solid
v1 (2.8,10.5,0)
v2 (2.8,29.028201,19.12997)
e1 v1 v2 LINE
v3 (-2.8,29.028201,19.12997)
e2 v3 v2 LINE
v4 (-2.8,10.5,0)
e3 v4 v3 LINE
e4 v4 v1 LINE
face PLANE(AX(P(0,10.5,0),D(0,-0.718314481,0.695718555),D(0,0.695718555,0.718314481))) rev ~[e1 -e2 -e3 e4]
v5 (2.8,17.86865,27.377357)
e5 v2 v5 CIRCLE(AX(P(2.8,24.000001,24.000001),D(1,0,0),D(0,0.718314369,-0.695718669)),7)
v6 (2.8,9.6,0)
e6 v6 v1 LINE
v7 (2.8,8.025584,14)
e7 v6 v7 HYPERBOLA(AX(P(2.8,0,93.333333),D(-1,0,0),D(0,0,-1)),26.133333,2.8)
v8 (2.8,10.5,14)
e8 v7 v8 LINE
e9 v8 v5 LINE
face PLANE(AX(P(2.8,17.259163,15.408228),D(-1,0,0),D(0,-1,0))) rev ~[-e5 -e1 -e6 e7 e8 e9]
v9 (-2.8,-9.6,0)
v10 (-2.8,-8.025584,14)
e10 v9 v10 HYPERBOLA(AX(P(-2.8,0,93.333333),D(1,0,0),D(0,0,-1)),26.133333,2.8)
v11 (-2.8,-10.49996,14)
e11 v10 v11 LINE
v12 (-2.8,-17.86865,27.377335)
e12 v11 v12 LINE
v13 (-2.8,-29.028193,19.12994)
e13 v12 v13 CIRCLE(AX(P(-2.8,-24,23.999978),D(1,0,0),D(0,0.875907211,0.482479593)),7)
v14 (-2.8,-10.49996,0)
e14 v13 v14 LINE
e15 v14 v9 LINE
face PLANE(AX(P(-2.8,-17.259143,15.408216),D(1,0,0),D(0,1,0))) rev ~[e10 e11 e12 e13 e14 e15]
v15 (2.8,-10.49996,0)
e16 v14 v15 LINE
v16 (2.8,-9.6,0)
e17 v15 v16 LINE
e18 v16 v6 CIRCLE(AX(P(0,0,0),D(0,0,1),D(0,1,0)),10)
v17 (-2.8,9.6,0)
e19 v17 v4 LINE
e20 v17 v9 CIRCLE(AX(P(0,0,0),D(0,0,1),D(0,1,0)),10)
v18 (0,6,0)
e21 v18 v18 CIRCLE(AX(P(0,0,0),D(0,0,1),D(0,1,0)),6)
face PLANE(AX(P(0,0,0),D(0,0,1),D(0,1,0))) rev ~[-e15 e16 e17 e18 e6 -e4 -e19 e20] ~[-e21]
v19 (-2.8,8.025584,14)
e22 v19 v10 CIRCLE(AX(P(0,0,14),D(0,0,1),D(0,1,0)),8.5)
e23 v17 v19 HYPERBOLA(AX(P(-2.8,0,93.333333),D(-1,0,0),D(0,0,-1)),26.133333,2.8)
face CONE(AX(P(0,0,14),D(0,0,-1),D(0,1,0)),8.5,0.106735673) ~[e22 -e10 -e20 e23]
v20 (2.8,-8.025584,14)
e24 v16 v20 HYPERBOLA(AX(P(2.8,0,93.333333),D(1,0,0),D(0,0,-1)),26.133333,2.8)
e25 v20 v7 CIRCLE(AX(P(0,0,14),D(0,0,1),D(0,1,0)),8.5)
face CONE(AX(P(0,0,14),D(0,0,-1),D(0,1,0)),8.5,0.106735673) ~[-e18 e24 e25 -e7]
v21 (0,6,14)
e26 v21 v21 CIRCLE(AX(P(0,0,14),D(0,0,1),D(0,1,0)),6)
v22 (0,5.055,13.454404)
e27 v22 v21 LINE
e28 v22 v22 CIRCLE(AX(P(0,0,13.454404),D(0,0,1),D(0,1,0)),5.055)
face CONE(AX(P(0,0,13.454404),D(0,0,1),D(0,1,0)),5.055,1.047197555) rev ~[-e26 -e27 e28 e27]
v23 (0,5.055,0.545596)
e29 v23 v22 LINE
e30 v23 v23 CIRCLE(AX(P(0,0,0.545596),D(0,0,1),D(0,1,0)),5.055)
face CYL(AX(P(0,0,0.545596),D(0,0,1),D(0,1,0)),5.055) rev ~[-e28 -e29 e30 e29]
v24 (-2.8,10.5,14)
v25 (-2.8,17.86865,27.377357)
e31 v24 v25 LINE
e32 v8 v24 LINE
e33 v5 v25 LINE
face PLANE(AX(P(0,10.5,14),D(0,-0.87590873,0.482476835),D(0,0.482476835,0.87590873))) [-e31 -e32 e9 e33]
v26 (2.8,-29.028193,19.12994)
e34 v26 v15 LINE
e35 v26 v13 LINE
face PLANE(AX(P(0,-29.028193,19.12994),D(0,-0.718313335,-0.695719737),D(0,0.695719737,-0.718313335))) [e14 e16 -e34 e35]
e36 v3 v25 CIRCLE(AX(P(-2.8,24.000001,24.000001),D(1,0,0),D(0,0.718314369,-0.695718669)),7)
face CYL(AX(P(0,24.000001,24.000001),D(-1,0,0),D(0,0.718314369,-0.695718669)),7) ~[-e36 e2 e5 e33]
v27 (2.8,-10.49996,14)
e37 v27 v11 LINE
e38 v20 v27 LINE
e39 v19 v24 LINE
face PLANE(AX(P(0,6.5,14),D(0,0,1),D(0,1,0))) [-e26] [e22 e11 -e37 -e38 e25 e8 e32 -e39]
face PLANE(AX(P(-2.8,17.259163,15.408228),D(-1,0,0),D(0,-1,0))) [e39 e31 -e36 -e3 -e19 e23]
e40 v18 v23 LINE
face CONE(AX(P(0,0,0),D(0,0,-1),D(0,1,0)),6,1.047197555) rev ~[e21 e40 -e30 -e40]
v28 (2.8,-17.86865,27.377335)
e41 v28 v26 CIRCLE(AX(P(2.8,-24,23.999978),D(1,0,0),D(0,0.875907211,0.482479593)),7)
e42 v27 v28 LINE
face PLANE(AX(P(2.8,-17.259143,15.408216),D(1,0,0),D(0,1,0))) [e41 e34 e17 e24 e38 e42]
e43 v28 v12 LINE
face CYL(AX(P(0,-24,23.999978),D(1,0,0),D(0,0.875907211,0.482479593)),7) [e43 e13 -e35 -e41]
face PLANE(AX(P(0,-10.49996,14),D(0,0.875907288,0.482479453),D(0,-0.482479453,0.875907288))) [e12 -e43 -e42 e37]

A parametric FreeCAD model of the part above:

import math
import FreeCAD as App
import Part
import Sketcher

V = App.Vector
Q = App.Units.Quantity

doc = App.newDocument("Part")
body = doc.addObject("PartDesign::Body", "Body")
body.AllowCompound = True

# Sketch on YZ plane
sketch1 = doc.addObject("Sketcher::SketchObject", "Sketch")
body.addObject(sketch1)
sketch1.AttachmentSupport = (doc.YZ_Plane, [""])
sketch1.MapMode = "FlatFace"
sketch1.addGeometry([
    Part.LineSegment(V(6.5, 14, 0), V(6.5, 0, 0)),  # 0
    Part.LineSegment(V(6.5, 0, 0), V(10.5, 0, 0)),  # 1
    Part.LineSegment(V(10.5, 0, 0), V(29, 19.1, 0)),  # 2
    Part.ArcOfCircle(Part.Circle(V(24, 24, 0), V(0, 0, 1), 7), math.radians(-44), math.radians(151)),  # 3
    Part.LineSegment(V(17.9, 27.4, 0), V(10.5, 14, 0)),  # 4
    Part.LineSegment(V(10.5, 14, 0), V(6.5, 14, 0)),  # 5
    Part.LineSegment(V(-29, 19.1, 0), V(-10.5, 0, 0)),  # 6
    Part.LineSegment(V(-10.5, 0, 0), V(-6.5, 0, 0)),  # 7
    Part.LineSegment(V(-6.5, 0, 0), V(-6.5, 14, 0)),  # 8
    Part.LineSegment(V(-6.5, 14, 0), V(-10.5, 14, 0)),  # 9
    Part.LineSegment(V(-10.5, 14, 0), V(-17.9, 27.4, 0)),  # 10
    Part.ArcOfCircle(Part.Circle(V(-24, 24, 0), V(0, 0, 1), 7), math.radians(29), math.radians(224)),  # 11
], False)
sketch1.addConstraint([
    Sketcher.Constraint("Coincident", 0, 2, 1, 1),
    Sketcher.Constraint("Coincident", 1, 2, 2, 1),
    Sketcher.Constraint("Tangent", 2, 2, 3, 1),
    Sketcher.Constraint("Coincident", 3, 2, 4, 1),
    Sketcher.Constraint("Coincident", 4, 2, 5, 1),
    Sketcher.Constraint("Coincident", 5, 2, 0, 1),
    Sketcher.Constraint("Coincident", 6, 2, 7, 1),
    Sketcher.Constraint("Coincident", 7, 2, 8, 1),
    Sketcher.Constraint("Coincident", 8, 2, 9, 1),
    Sketcher.Constraint("Coincident", 9, 2, 10, 1),
    Sketcher.Constraint("Tangent", 10, 2, 11, 1),
    Sketcher.Constraint("Tangent", 11, 2, 6, 1),
    Sketcher.Constraint("Vertical", 0),
    Sketcher.Constraint("Horizontal", 1),
    Sketcher.Constraint("Horizontal", 5),
    Sketcher.Constraint("Horizontal", 7),
    Sketcher.Constraint("Vertical", 8),
    Sketcher.Constraint("Horizontal", 9),
    Sketcher.Constraint("Equal", 3, 11),
    Sketcher.Constraint("PointOnObject", 0, 2, -1),
    Sketcher.Constraint("PointOnObject", 6, 2, -1),
    Sketcher.Constraint("Horizontal", 5, 2, 8, 2),
    Sketcher.Constraint("Vertical", 1, 2, 4, 2),
    Sketcher.Constraint("Vertical", 6, 2, 9, 2),
    Sketcher.Constraint("Equal", 5, 7),
    Sketcher.Constraint("Equal", 2, 6),
    Sketcher.Constraint("Equal", 4, 10),
    Sketcher.Constraint("Radius", 3, Q("7 mm")),
    Sketcher.Constraint("DistanceX", 1, 1, 1, 2, Q("4 mm")),
    Sketcher.Constraint("DistanceY", 0, 2, 0, 1, Q("14 mm")),
    Sketcher.Constraint("DistanceX", -1, 1, 3, 3, Q("24.000001 mm")),
    Sketcher.Constraint("DistanceY", -1, 1, 3, 3, Q("24.000001 mm")),
    Sketcher.Constraint("DistanceX", 11, 3, -1, 1, Q("24 mm")),
    Sketcher.Constraint("DistanceX", -1, 1, 0, 2, Q("6.5 mm")),
    Sketcher.Constraint("DistanceY", -1, 1, 11, 3, Q("23.999978 mm")),
])
pad1 = doc.addObject("PartDesign::Pad", "Pad")
body.addObject(pad1)
pad1.Profile = sketch1
pad1.Length = 5.6
pad1.Midplane = True
body2 = doc.addObject("PartDesign::Body", "Body001")

# Sketch on YZ plane
sketch2 = doc.addObject("Sketcher::SketchObject", "Sketch001")
body2.addObject(sketch2)
sketch2.AttachmentSupport = (doc.getObject("YZ_Plane001"), [""])
sketch2.MapMode = "FlatFace"
sketch2.addGeometry([
    Part.LineSegment(V(5.1, 0.5, 0), V(6, 0, 0)),  # 0
    Part.LineSegment(V(6, 0, 0), V(10, 0, 0)),  # 1
    Part.LineSegment(V(10, 0, 0), V(8.5, 14, 0)),  # 2
    Part.LineSegment(V(8.5, 14, 0), V(6, 14, 0)),  # 3
    Part.LineSegment(V(6, 14, 0), V(5.1, 13.5, 0)),  # 4
    Part.LineSegment(V(5.1, 13.5, 0), V(5.1, 0.5, 0)),  # 5
], False)
sketch2.addConstraint([
    Sketcher.Constraint("Coincident", 0, 2, 1, 1),
    Sketcher.Constraint("Coincident", 1, 2, 2, 1),
    Sketcher.Constraint("Coincident", 2, 2, 3, 1),
    Sketcher.Constraint("Coincident", 3, 2, 4, 1),
    Sketcher.Constraint("Coincident", 4, 2, 5, 1),
    Sketcher.Constraint("Coincident", 5, 2, 0, 1),
    Sketcher.Constraint("Horizontal", 1),
    Sketcher.Constraint("Horizontal", 3),
    Sketcher.Constraint("Vertical", 5),
    Sketcher.Constraint("PointOnObject", 0, 2, -1),
    Sketcher.Constraint("Vertical", 0, 2, 3, 2),
    Sketcher.Constraint("Equal", 0, 4),
    Sketcher.Constraint("DistanceX", 1, 1, 1, 2, Q("4 mm")),
    Sketcher.Constraint("Angle", 0, Q("-30 deg")),
    Sketcher.Constraint("DistanceX", 3, 2, 3, 1, Q("2.5 mm")),
    Sketcher.Constraint("DistanceX", -1, 1, 0, 2, Q("6 mm")),
    Sketcher.Constraint("DistanceY", -1, 1, 2, 2, Q("14 mm")),
    Sketcher.Constraint("DistanceX", -1, 1, 4, 2, Q("5.055 mm")),
])
revolution = doc.addObject("PartDesign::Revolution", "Revolution")
body2.addObject(revolution)
revolution.Profile = sketch2
revolution.ReferenceAxis = (sketch2, ["V_Axis"])
revolution.Angle = 360
doc.recompute()

boolean = doc.addObject("PartDesign::Boolean", "Boolean")
body2.addObject(boolean)
boolean.Type = "Fuse"
boolean.addObjects([body])

doc.recompute()
